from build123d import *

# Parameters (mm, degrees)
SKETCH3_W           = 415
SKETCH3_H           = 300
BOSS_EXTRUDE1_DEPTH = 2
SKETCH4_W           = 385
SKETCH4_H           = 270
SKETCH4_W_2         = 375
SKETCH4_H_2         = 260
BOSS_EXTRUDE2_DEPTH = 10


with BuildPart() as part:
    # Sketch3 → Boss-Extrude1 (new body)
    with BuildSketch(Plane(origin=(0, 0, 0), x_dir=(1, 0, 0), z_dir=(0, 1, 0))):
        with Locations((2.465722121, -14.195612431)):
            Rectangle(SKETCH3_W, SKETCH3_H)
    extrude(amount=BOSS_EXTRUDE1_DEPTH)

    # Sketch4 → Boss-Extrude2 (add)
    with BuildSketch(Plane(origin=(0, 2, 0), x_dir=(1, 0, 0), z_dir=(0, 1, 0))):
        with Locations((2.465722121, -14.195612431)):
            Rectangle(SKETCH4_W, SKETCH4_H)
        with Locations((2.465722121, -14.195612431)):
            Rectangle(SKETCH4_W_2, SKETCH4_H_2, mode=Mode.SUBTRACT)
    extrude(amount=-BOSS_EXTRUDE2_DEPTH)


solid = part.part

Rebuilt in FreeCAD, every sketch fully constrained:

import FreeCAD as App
import Part
import Sketcher
from FreeCAD import Vector
Q = App.Units.Quantity

doc = App.newDocument("Part")
body = doc.addObject("PartDesign::Body", "Body")

# Sketch on XZ plane
sketch1 = body.newObject("Sketcher::SketchObject", "Sketch")
sketch1.AttachmentSupport = (doc.getObject("XZ_Plane"), [""])
sketch1.MapMode = "FlatFace"
sketch1.addGeometry([
    Part.LineSegment(Vector(-205, -136, 0), Vector(-205, 164, 0)),
    Part.LineSegment(Vector(-205, 164, 0), Vector(210, 164, 0)),
    Part.LineSegment(Vector(210, 164, 0), Vector(210, -136, 0)),
    Part.LineSegment(Vector(210, -136, 0), Vector(-205, -136, 0)),
], False)
sketch1.addConstraint([
    Sketcher.Constraint("Coincident", 0, 2, 1, 1),
    Sketcher.Constraint("Coincident", 1, 2, 2, 1),
    Sketcher.Constraint("Coincident", 2, 2, 3, 1),
    Sketcher.Constraint("Coincident", 3, 2, 0, 1),
    Sketcher.Constraint("Vertical", 0),
    Sketcher.Constraint("Horizontal", 1),
    Sketcher.Constraint("Vertical", 2),
    Sketcher.Constraint("Horizontal", 3),
    Sketcher.Constraint("DistanceX", 1, 1, 1, 2, Q("415 mm")),
    Sketcher.Constraint("DistanceY", 0, 1, 0, 2, Q("300 mm")),
    Sketcher.Constraint("DistanceX", 0, 2, -1, 1, Q("205.034278 mm")),
    Sketcher.Constraint("DistanceY", -1, 1, 0, 2, Q("164.195612 mm")),
])
pad1 = body.newObject("PartDesign::Pad", "Pad")
pad1.Profile = sketch1
pad1.Length = 2
pad1.Reversed = True

# Sketch on XZ plane
sketch2 = body.newObject("Sketcher::SketchObject", "Sketch001")
sketch2.AttachmentSupport = (doc.getObject("XZ_Plane"), [""])
sketch2.MapMode = "FlatFace"
sketch2.AttachmentOffset = App.Placement(Vector(0, 0, -2), App.Rotation())
sketch2.addGeometry([
    Part.LineSegment(Vector(-190, -121, 0), Vector(-190, 149, 0)),  # 0
    Part.LineSegment(Vector(-190, 149, 0), Vector(195, 149, 0)),  # 1
    Part.LineSegment(Vector(195, 149, 0), Vector(195, -121, 0)),  # 2
    Part.LineSegment(Vector(195, -121, 0), Vector(-190, -121, 0)),  # 3
    Part.LineSegment(Vector(190, 144, 0), Vector(-185, 144, 0)),  # 4
    Part.LineSegment(Vector(-185, 144, 0), Vector(-185, -116, 0)),  # 5
    Part.LineSegment(Vector(-185, -116, 0), Vector(190, -116, 0)),  # 6
    Part.LineSegment(Vector(190, -116, 0), Vector(190, 144, 0)),  # 7
], False)
sketch2.addConstraint([
    Sketcher.Constraint("Coincident", 0, 2, 1, 1),
    Sketcher.Constraint("Coincident", 1, 2, 2, 1),
    Sketcher.Constraint("Coincident", 2, 2, 3, 1),
    Sketcher.Constraint("Coincident", 3, 2, 0, 1),
    Sketcher.Constraint("Coincident", 4, 2, 5, 1),
    Sketcher.Constraint("Coincident", 5, 2, 6, 1),
    Sketcher.Constraint("Coincident", 6, 2, 7, 1),
    Sketcher.Constraint("Coincident", 7, 2, 4, 1),
    Sketcher.Constraint("Vertical", 0),
    Sketcher.Constraint("Horizontal", 1),
    Sketcher.Constraint("Vertical", 2),
    Sketcher.Constraint("Horizontal", 3),
    Sketcher.Constraint("Horizontal", 4),
    Sketcher.Constraint("Vertical", 5),
    Sketcher.Constraint("Horizontal", 6),
    Sketcher.Constraint("Vertical", 7),
    Sketcher.Constraint("DistanceX", 1, 1, 1, 2, Q("385 mm")),
    Sketcher.Constraint("DistanceX", 4, 2, 4, 1, Q("375 mm")),
    Sketcher.Constraint("DistanceY", 0, 1, 0, 2, Q("270 mm")),
    Sketcher.Constraint("DistanceY", 5, 2, 5, 1, Q("260 mm")),
    Sketcher.Constraint("DistanceX", 0, 2, 4, 2, Q("5 mm")),
    Sketcher.Constraint("DistanceY", 4, 2, 0, 2, Q("5 mm")),
    Sketcher.Constraint("DistanceX", 0, 2, -1, 1, Q("190.034278 mm")),
    Sketcher.Constraint("DistanceY", -1, 1, 0, 2, Q("149.195612 mm")),
])
pad2 = body.newObject("PartDesign::Pad", "Pad001")
pad2.Profile = sketch2
pad2.Length = 10

doc.recompute()
